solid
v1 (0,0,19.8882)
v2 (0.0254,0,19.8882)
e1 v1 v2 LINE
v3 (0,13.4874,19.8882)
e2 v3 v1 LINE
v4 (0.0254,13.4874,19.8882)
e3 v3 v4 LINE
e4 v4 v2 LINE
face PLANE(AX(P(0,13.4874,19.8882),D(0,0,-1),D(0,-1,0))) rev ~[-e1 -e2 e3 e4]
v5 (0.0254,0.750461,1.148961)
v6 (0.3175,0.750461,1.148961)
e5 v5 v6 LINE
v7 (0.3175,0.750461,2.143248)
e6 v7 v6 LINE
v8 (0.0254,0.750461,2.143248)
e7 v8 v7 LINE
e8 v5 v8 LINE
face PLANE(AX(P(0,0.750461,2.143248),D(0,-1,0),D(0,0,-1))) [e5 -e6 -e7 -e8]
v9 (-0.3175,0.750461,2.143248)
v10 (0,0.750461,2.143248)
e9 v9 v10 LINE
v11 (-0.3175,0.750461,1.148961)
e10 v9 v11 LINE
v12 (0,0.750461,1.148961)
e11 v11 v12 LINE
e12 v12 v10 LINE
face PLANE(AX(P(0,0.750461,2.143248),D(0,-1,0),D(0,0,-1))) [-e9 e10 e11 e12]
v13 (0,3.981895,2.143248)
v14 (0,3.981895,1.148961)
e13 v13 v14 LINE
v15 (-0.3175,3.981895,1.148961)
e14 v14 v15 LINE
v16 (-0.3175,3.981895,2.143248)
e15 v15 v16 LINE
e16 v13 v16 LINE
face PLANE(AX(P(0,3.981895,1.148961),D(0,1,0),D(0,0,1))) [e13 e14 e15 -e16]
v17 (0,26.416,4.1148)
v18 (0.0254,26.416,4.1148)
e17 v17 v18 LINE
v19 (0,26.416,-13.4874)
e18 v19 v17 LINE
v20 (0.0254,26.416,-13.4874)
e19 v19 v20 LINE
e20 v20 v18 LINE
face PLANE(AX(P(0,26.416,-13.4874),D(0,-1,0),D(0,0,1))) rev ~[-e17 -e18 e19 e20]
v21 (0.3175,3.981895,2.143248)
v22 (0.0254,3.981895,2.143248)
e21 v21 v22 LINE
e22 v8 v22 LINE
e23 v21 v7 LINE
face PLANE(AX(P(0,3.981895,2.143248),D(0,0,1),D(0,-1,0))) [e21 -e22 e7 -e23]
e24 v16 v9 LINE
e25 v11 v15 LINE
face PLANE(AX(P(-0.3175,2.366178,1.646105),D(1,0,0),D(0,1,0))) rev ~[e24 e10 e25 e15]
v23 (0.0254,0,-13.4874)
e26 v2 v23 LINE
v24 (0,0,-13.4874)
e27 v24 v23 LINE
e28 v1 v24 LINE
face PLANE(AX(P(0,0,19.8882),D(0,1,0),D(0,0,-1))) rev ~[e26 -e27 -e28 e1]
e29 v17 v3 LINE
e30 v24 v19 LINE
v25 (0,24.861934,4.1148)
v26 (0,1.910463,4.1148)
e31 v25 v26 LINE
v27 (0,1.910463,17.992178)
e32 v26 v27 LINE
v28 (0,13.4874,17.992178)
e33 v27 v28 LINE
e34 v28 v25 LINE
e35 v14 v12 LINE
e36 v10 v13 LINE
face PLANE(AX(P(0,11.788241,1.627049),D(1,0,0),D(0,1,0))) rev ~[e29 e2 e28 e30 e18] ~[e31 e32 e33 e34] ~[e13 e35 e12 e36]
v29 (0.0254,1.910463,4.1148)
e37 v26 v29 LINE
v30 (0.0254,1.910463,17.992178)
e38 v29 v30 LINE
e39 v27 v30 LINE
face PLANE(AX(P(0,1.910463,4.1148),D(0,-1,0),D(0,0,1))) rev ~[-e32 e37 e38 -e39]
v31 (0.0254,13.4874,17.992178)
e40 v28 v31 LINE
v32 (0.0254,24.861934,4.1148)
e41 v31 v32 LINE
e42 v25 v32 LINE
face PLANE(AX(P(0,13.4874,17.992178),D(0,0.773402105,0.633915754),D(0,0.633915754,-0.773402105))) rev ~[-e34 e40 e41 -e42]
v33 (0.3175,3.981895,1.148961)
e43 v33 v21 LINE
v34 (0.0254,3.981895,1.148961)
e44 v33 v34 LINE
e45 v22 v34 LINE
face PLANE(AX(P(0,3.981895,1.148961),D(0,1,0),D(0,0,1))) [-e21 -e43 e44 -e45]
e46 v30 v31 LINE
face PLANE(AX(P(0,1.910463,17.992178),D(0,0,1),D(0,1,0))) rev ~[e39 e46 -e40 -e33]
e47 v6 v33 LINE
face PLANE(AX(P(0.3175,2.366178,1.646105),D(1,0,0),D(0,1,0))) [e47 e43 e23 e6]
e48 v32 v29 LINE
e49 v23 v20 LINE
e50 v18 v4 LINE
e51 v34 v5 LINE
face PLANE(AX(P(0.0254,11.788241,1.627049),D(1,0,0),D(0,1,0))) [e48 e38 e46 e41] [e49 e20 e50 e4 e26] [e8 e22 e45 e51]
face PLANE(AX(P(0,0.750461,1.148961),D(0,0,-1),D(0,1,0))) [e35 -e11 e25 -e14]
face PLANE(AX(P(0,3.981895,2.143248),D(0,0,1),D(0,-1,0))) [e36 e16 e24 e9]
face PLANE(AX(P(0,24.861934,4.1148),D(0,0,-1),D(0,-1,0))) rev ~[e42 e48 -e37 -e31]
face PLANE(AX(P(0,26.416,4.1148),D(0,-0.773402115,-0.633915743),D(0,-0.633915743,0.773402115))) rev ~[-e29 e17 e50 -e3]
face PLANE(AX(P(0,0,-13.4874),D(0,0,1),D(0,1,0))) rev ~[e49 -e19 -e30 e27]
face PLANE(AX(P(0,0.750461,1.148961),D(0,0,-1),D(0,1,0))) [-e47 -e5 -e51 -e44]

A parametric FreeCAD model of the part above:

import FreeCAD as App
import Part
import Sketcher
from FreeCAD import Vector
Q = App.Units.Quantity


def add_polygon(sketch, points):
    """Adds a closed chain of lines whose ends are joined by coincident constraints."""
    first, n = sketch.GeometryCount, len(points)
    for a, b in zip(points, points[1:] + points[:1]):
        sketch.addGeometry(Part.LineSegment(App.Vector(*a, 0), App.Vector(*b, 0)), False)
    for i in range(n):
        sketch.addConstraint(Sketcher.Constraint("Coincident", first + i, 2, first + (i + 1) % n, 1))

doc = App.newDocument("Part")
body = doc.addObject("PartDesign::Body", "Body")

# Sketch on YZ plane
sketch1 = body.newObject("Sketcher::SketchObject", "Sketch")
sketch1.AttachmentSupport = (doc.getObject("YZ_Plane"), [""])
sketch1.MapMode = "FlatFace"
add_polygon(sketch1, [(4, 2.1), (0.8, 2.1), (0.8, 1.1), (4, 1.1)])  # lines 0-3
sketch1.addConstraint(Sketcher.Constraint("Horizontal", 0))
sketch1.addConstraint(Sketcher.Constraint("Vertical", 1))
sketch1.addConstraint(Sketcher.Constraint("Horizontal", 2))
sketch1.addConstraint(Sketcher.Constraint("Vertical", 3))
sketch1.addConstraint(Sketcher.Constraint("DistanceX", 0, 2, 0, 1, Q("3.231434 mm")))
sketch1.addConstraint(Sketcher.Constraint("DistanceY", 1, 2, 1, 1, Q("0.994287 mm")))
sketch1.addConstraint(Sketcher.Constraint("DistanceX", -1, 1, 0, 2, Q("0.750461 mm")))
sketch1.addConstraint(Sketcher.Constraint("DistanceY", -1, 1, 1, 2, Q("1.148961 mm")))
pad1 = body.newObject("PartDesign::Pad", "Pad")
pad1.Profile = sketch1
pad1.Length = Q("0.025 in")
pad1.Midplane = True

# Sketch on YZ plane
sketch2 = body.newObject("Sketcher::SketchObject", "Sketch001")
sketch2.AttachmentSupport = (doc.getObject("YZ_Plane"), [""])
sketch2.MapMode = "FlatFace"
add_polygon(sketch2, [(13.5, 19.9), (0, 19.9), (0, -13.5), (26.4, -13.5), (26.4, 4.1)])  # lines 0-4
add_polygon(sketch2, [(0.8, 1.1), (0.8, 2.1), (4, 2.1), (4, 1.1)])  # lines 5-8
add_polygon(sketch2, [(13.5, 18), (24.9, 4.1), (1.9, 4.1), (1.9, 18)])  # lines 9-12
sketch2.addConstraint(Sketcher.Constraint("Horizontal", 0))
sketch2.addConstraint(Sketcher.Constraint("Vertical", 1))
sketch2.addConstraint(Sketcher.Constraint("Horizontal", 2))
sketch2.addConstraint(Sketcher.Constraint("Vertical", 3))
sketch2.addConstraint(Sketcher.Constraint("Vertical", 5))
sketch2.addConstraint(Sketcher.Constraint("Horizontal", 6))
sketch2.addConstraint(Sketcher.Constraint("Vertical", 7))
sketch2.addConstraint(Sketcher.Constraint("Horizontal", 8))
sketch2.addConstraint(Sketcher.Constraint("Horizontal", 10))
sketch2.addConstraint(Sketcher.Constraint("Vertical", 11))
sketch2.addConstraint(Sketcher.Constraint("Horizontal", 12))
sketch2.addConstraint(Sketcher.Constraint("PointOnObject", 0, 2, -2))
sketch2.addConstraint(Sketcher.Constraint("Parallel", 4, 9))
sketch2.addConstraint(Sketcher.Constraint("Horizontal", 3, 2, 9, 2))
sketch2.addConstraint(Sketcher.Constraint("Vertical", 4, 2, 12, 2))
sketch2.addConstraint(Sketcher.Constraint("DistanceX", 2, 1, 2, 2, Q("1.04 in")))
sketch2.addConstraint(Sketcher.Constraint("DistanceX", 0, 2, 0, 1, Q("0.531 in")))
sketch2.addConstraint(Sketcher.Constraint("DistanceY", 1, 2, 1, 1, Q("1.314 in")))
sketch2.addConstraint(Sketcher.Constraint("DistanceY", 3, 1, 3, 2, Q("0.693 in")))
sketch2.addConstraint(Sketcher.Constraint("DistanceY", -1, 1, 0, 2, Q("0.783 in")))
sketch2.addConstraint(Sketcher.Constraint("DistanceX", 10, 2, 10, 1, Q("22.951471 mm")))
sketch2.addConstraint(Sketcher.Constraint("Distance", 9, Q("17.94329 mm")))
sketch2.addConstraint(Sketcher.Constraint("DistanceX", 6, 1, 6, 2, Q("3.231434 mm")))
sketch2.addConstraint(Sketcher.Constraint("DistanceY", 5, 1, 5, 2, Q("0.994287 mm")))
sketch2.addConstraint(Sketcher.Constraint("DistanceX", -1, 1, 5, 2, Q("0.750461 mm")))
sketch2.addConstraint(Sketcher.Constraint("DistanceY", -1, 1, 7, 2, Q("1.148961 mm")))
pad2 = body.newObject("PartDesign::Pad", "Pad001")
pad2.Profile = sketch2
pad2.Length = Q("0.001 in")

doc.recompute()
